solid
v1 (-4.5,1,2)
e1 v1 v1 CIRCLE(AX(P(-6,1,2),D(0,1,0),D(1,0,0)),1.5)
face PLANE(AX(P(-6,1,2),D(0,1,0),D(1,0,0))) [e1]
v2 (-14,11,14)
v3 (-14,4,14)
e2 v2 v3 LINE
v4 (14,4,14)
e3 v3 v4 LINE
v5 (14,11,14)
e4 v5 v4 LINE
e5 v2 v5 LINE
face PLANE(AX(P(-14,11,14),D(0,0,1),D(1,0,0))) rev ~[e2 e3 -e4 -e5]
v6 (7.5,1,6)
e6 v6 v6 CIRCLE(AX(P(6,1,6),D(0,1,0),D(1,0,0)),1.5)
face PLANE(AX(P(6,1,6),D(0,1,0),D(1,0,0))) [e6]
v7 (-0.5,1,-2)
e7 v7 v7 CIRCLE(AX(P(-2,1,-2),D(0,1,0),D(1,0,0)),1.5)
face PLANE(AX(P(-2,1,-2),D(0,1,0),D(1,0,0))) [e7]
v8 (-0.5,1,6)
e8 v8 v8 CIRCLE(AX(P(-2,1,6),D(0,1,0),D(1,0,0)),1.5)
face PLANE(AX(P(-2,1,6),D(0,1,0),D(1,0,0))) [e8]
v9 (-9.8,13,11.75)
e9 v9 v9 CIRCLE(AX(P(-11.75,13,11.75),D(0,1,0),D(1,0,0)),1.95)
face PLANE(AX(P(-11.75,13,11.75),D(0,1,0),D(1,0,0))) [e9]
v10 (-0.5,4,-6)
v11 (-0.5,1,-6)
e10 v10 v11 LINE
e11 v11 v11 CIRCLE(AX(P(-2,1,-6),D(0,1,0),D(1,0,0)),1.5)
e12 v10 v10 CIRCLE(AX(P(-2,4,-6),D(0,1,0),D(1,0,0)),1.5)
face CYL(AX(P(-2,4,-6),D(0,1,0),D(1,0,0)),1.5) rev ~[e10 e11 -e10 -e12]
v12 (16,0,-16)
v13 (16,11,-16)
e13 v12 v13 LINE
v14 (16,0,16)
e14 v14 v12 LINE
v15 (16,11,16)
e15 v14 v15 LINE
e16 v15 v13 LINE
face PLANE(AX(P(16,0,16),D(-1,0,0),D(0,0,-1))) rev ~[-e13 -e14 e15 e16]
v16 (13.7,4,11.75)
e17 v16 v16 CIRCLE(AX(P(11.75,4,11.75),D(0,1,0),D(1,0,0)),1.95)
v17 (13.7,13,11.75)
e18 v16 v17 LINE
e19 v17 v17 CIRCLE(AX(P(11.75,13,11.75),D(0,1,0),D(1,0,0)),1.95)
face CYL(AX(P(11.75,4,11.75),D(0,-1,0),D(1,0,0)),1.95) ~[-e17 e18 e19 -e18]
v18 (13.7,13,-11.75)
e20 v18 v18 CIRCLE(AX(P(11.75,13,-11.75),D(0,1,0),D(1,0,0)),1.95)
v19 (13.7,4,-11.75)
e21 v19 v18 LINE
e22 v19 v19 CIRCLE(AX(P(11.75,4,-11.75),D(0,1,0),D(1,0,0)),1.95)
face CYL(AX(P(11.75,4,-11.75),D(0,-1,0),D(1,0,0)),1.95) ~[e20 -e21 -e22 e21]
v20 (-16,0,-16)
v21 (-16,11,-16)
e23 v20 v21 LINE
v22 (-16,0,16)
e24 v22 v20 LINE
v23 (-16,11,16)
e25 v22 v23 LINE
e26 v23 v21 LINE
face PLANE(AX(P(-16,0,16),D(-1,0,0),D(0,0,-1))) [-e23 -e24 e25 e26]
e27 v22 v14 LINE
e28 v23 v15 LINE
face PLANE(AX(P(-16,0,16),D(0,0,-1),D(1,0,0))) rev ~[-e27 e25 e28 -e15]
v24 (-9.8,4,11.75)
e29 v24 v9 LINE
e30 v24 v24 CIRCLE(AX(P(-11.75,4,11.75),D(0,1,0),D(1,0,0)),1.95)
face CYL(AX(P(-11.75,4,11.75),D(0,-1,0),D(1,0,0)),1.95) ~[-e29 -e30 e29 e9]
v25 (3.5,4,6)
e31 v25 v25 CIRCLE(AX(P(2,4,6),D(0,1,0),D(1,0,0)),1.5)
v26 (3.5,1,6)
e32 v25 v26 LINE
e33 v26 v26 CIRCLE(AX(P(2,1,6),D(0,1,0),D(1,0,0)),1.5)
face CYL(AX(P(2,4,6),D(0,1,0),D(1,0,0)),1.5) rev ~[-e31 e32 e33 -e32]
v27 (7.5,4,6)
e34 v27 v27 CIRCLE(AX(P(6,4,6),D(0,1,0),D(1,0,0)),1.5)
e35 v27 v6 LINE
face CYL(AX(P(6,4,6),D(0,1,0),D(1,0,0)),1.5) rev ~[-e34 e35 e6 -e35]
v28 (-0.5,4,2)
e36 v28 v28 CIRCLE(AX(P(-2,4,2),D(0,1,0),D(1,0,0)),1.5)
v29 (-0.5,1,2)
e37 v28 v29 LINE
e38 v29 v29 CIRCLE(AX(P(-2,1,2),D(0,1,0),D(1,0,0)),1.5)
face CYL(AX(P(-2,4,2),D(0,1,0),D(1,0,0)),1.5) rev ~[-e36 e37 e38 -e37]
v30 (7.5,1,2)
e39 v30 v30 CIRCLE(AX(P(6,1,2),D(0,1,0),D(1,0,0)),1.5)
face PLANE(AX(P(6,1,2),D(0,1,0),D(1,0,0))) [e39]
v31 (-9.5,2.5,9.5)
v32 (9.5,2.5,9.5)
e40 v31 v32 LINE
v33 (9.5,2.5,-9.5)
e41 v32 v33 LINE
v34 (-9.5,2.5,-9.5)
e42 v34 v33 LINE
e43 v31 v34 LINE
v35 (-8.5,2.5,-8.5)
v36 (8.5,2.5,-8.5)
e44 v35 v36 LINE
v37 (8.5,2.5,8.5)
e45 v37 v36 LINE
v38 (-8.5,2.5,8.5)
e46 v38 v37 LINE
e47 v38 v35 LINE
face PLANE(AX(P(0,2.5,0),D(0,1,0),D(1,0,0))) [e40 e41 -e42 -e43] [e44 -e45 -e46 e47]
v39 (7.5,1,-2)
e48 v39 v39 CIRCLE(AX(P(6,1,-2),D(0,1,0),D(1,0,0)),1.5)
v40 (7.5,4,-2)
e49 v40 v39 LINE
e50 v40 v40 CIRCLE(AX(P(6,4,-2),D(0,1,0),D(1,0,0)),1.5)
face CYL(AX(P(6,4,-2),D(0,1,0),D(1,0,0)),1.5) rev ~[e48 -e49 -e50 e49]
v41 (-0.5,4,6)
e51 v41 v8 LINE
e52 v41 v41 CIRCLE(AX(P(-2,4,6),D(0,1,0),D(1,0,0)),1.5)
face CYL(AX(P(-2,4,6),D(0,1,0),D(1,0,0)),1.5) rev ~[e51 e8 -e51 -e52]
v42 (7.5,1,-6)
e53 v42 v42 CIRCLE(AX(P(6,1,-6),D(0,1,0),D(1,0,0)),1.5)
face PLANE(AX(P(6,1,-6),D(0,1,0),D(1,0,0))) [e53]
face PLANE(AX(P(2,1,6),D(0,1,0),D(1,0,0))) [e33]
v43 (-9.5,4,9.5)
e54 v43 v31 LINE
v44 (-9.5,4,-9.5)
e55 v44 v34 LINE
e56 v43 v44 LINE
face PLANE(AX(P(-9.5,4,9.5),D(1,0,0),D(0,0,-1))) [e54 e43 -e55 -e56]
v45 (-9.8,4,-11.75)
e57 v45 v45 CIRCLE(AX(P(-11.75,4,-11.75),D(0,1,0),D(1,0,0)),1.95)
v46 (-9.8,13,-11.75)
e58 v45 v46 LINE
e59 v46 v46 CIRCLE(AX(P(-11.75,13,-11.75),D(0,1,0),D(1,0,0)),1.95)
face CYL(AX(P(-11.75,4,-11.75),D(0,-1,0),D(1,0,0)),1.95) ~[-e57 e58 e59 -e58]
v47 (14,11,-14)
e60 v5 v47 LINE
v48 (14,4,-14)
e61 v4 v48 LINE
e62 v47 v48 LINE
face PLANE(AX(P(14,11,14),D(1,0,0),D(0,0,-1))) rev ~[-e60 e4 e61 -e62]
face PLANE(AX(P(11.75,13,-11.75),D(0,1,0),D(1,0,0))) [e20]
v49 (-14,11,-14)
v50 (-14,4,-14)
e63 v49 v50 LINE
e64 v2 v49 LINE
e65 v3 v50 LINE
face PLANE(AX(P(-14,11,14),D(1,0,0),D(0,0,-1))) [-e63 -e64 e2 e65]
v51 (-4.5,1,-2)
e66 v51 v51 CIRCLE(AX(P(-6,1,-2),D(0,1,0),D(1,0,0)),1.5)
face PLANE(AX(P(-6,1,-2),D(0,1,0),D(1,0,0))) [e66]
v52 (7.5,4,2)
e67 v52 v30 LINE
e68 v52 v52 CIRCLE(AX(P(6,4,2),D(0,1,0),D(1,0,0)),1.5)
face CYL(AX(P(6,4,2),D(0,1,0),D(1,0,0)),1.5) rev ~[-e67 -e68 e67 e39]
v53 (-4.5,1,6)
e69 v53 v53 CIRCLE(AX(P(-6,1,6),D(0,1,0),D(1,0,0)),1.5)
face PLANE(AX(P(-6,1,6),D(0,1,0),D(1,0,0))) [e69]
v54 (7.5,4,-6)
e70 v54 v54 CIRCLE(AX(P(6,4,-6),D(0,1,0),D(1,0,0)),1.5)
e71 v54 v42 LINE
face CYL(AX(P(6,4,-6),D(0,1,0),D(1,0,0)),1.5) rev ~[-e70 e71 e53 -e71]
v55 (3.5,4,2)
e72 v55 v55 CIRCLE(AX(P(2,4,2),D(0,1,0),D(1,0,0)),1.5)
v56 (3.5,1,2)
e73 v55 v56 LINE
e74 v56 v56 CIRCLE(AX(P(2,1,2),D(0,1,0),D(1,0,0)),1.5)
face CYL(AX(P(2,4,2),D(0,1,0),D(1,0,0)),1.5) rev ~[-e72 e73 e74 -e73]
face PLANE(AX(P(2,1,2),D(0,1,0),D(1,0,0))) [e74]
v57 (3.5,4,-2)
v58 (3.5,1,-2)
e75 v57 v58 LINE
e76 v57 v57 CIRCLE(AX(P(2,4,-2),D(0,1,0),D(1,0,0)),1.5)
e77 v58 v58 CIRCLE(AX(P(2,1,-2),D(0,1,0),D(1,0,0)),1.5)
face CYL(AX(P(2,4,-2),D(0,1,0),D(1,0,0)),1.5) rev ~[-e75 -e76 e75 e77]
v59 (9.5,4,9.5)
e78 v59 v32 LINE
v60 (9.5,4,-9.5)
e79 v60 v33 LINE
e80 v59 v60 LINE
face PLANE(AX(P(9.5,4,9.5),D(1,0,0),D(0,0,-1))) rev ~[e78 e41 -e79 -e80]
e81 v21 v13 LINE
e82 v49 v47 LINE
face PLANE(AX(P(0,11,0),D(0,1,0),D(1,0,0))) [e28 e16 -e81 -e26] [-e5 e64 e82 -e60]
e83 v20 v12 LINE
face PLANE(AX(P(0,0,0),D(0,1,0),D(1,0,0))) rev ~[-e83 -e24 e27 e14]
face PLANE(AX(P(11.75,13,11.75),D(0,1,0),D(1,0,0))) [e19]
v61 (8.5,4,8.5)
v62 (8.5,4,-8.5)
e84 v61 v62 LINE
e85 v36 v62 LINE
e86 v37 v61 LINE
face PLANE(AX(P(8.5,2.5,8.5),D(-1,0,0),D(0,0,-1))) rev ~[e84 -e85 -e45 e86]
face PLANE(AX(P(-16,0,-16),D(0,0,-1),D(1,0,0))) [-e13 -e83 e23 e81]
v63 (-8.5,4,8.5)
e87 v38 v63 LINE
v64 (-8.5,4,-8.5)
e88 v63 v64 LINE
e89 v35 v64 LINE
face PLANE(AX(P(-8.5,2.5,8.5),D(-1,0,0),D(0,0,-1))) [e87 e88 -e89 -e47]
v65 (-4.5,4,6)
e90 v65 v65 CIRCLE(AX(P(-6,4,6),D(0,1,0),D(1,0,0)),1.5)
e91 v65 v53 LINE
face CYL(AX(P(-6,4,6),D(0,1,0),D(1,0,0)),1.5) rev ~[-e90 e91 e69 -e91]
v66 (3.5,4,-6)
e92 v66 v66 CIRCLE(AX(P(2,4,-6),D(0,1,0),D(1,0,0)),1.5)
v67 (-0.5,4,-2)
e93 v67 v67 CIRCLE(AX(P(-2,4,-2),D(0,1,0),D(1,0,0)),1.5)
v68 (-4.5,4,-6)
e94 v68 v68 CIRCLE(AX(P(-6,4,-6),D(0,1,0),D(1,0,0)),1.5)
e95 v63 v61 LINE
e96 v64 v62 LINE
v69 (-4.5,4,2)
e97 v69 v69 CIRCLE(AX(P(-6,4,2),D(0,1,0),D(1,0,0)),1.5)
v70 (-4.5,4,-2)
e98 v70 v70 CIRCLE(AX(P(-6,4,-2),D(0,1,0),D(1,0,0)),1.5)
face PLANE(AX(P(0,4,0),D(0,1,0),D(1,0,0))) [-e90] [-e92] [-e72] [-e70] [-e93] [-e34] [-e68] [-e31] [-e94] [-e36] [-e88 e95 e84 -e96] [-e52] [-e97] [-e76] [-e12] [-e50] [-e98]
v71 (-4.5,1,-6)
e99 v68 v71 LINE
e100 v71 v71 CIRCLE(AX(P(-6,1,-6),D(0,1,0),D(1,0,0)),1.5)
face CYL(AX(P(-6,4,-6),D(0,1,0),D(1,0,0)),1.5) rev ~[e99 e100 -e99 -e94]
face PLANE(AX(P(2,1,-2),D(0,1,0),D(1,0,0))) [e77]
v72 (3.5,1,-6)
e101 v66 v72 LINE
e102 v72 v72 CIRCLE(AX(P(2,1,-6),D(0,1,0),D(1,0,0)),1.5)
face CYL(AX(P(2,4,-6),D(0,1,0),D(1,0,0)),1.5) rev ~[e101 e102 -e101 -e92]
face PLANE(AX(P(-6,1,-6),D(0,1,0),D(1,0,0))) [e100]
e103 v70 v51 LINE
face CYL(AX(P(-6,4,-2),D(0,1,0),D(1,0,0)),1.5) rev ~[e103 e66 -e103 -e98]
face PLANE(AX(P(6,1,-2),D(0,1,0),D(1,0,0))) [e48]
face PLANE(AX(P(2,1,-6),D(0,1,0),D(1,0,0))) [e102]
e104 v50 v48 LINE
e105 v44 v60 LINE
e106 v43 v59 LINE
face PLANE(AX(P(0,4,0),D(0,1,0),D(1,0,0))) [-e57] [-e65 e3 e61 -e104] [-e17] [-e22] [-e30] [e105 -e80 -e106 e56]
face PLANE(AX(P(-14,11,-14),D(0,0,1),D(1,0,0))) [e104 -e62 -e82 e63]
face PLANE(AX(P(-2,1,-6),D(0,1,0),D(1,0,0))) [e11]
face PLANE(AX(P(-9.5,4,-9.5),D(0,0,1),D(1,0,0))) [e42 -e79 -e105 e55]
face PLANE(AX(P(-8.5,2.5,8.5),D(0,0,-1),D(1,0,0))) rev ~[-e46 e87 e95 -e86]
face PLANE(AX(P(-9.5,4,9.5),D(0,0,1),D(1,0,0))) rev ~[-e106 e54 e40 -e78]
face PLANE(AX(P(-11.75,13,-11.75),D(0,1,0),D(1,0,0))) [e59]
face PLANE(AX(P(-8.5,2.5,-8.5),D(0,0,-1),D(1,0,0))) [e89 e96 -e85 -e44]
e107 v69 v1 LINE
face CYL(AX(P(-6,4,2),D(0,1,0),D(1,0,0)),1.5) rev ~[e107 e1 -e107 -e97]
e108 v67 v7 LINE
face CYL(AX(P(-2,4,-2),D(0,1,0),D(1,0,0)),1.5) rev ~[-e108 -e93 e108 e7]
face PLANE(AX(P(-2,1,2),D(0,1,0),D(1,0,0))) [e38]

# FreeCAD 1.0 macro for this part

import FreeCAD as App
import Part
import Sketcher
from FreeCAD import Vector

doc = App.newDocument("Part")
params = doc.addObject("Spreadsheet::Sheet", "Params")
for row, (alias, value) in enumerate([
    ("sketch1_width", "32 mm"),
    ("pad1_length", "11 mm"),
    ("sketch2_width", "28 mm"),
    ("pocket1_length", "7 mm"),
    ("sketch3_width", "19 mm"),
    ("pocket2_length", "1.5 mm"),
    ("sketch4_width", "17 mm"),
    ("pad2_length", "1.5 mm"),
    ("sketch5_diameter", "3.9 mm"),
    ("pad3_length", "9 mm"),
    ("sketch6_diameter", "3 mm"),
    ("pocket3_length", "3 mm"),
], start=1):
    params.set(f"A{row}", alias)
    params.set(f"B{row}", "=" + value)
    params.setAlias(f"B{row}", alias)

body = doc.addObject("PartDesign::Body", "Body")

# Sketch on XZ plane
sketch1 = doc.addObject("Sketcher::SketchObject", "Sketch")
body.addObject(sketch1)
sketch1.AttachmentSupport = (doc.XZ_Plane, [""])
sketch1.MapMode = "FlatFace"
sketch1.addGeometry(Part.LineSegment(Vector(-16, -16, 0), Vector(-16, 16, 0)), False)
sketch1.addGeometry(Part.LineSegment(Vector(-16, 16, 0), Vector(16, 16, 0)), False)
sketch1.addGeometry(Part.LineSegment(Vector(16, 16, 0), Vector(16, -16, 0)), False)
sketch1.addGeometry(Part.LineSegment(Vector(16, -16, 0), Vector(-16, -16, 0)), False)
sketch1.addConstraint(Sketcher.Constraint("Coincident", 0, 2, 1, 1))
sketch1.addConstraint(Sketcher.Constraint("Coincident", 1, 2, 2, 1))
sketch1.addConstraint(Sketcher.Constraint("Coincident", 2, 2, 3, 1))
sketch1.addConstraint(Sketcher.Constraint("Coincident", 3, 2, 0, 1))
sketch1.addConstraint(Sketcher.Constraint("Vertical", 0))
sketch1.addConstraint(Sketcher.Constraint("Horizontal", 1))
sketch1.addConstraint(Sketcher.Constraint("Vertical", 2))
sketch1.addConstraint(Sketcher.Constraint("Horizontal", 3))
sketch1.addConstraint(Sketcher.Constraint("Symmetric", 0, 2, 2, 2, -1, 1))
sketch1.addConstraint(Sketcher.Constraint("Equal", 3, 0))
sketch1.addConstraint(Sketcher.Constraint("DistanceX", 1, 1, 1, 2, 32.0))
sketch1.setExpression("Constraints[10]", "Params.sketch1_width")
pad1 = doc.addObject("PartDesign::Pad", "Pad")
body.addObject(pad1)
pad1.Profile = sketch1
pad1.setExpression("Length", "Params.pad1_length")
pad1.Reversed = True

# Sketch on XZ plane
sketch2 = doc.addObject("Sketcher::SketchObject", "Sketch001")
body.addObject(sketch2)
sketch2.AttachmentSupport = (doc.XZ_Plane, [""])
sketch2.MapMode = "FlatFace"
sketch2.AttachmentOffset = App.Placement(Vector(0, 0, -11), App.Rotation())
sketch2.addGeometry(Part.LineSegment(Vector(-14, -14, 0), Vector(-14, 14, 0)), False)
sketch2.addGeometry(Part.LineSegment(Vector(-14, 14, 0), Vector(14, 14, 0)), False)
sketch2.addGeometry(Part.LineSegment(Vector(14, 14, 0), Vector(14, -14, 0)), False)
sketch2.addGeometry(Part.LineSegment(Vector(14, -14, 0), Vector(-14, -14, 0)), False)
sketch2.addConstraint(Sketcher.Constraint("Coincident", 0, 2, 1, 1))
sketch2.addConstraint(Sketcher.Constraint("Coincident", 1, 2, 2, 1))
sketch2.addConstraint(Sketcher.Constraint("Coincident", 2, 2, 3, 1))
sketch2.addConstraint(Sketcher.Constraint("Coincident", 3, 2, 0, 1))
sketch2.addConstraint(Sketcher.Constraint("Vertical", 0))
sketch2.addConstraint(Sketcher.Constraint("Horizontal", 1))
sketch2.addConstraint(Sketcher.Constraint("Vertical", 2))
sketch2.addConstraint(Sketcher.Constraint("Horizontal", 3))
sketch2.addConstraint(Sketcher.Constraint("Symmetric", 0, 2, 2, 2, -1, 1))
sketch2.addConstraint(Sketcher.Constraint("Equal", 3, 0))
sketch2.addConstraint(Sketcher.Constraint("DistanceX", 1, 1, 1, 2, 28.0))
sketch2.setExpression("Constraints[10]", "Params.sketch2_width")
pocket1 = doc.addObject("PartDesign::Pocket", "Pocket")
body.addObject(pocket1)
pocket1.Profile = sketch2
pocket1.setExpression("Length", "Params.pocket1_length")
pocket1.Reversed = True

# Sketch on XZ plane
sketch3 = doc.addObject("Sketcher::SketchObject", "Sketch002")
body.addObject(sketch3)
sketch3.AttachmentSupport = (doc.XZ_Plane, [""])
sketch3.MapMode = "FlatFace"
sketch3.AttachmentOffset = App.Placement(Vector(0, 0, -4), App.Rotation())
sketch3.addGeometry(Part.LineSegment(Vector(-9.5, -9.5, 0), Vector(-9.5, 9.5, 0)), False)
sketch3.addGeometry(Part.LineSegment(Vector(-9.5, 9.5, 0), Vector(9.5, 9.5, 0)), False)
sketch3.addGeometry(Part.LineSegment(Vector(9.5, 9.5, 0), Vector(9.5, -9.5, 0)), False)
sketch3.addGeometry(Part.LineSegment(Vector(9.5, -9.5, 0), Vector(-9.5, -9.5, 0)), False)
sketch3.addConstraint(Sketcher.Constraint("Coincident", 0, 2, 1, 1))
sketch3.addConstraint(Sketcher.Constraint("Coincident", 1, 2, 2, 1))
sketch3.addConstraint(Sketcher.Constraint("Coincident", 2, 2, 3, 1))
sketch3.addConstraint(Sketcher.Constraint("Coincident", 3, 2, 0, 1))
sketch3.addConstraint(Sketcher.Constraint("Vertical", 0))
sketch3.addConstraint(Sketcher.Constraint("Horizontal", 1))
sketch3.addConstraint(Sketcher.Constraint("Vertical", 2))
sketch3.addConstraint(Sketcher.Constraint("Horizontal", 3))
sketch3.addConstraint(Sketcher.Constraint("Symmetric", 0, 2, 2, 2, -1, 1))
sketch3.addConstraint(Sketcher.Constraint("Equal", 3, 0))
sketch3.addConstraint(Sketcher.Constraint("DistanceX", 1, 1, 1, 2, 19.0))
sketch3.setExpression("Constraints[10]", "Params.sketch3_width")
pocket2 = doc.addObject("PartDesign::Pocket", "Pocket001")
body.addObject(pocket2)
pocket2.Profile = sketch3
pocket2.setExpression("Length", "Params.pocket2_length")
pocket2.Reversed = True

# Sketch on XZ plane
sketch4 = doc.addObject("Sketcher::SketchObject", "Sketch003")
body.addObject(sketch4)
sketch4.AttachmentSupport = (doc.XZ_Plane, [""])
sketch4.MapMode = "FlatFace"
sketch4.AttachmentOffset = App.Placement(Vector(0, 0, -2.5), App.Rotation())
sketch4.addGeometry(Part.LineSegment(Vector(-8.5, -8.5, 0), Vector(-8.5, 8.5, 0)), False)
sketch4.addGeometry(Part.LineSegment(Vector(-8.5, 8.5, 0), Vector(8.5, 8.5, 0)), False)
sketch4.addGeometry(Part.LineSegment(Vector(8.5, 8.5, 0), Vector(8.5, -8.5, 0)), False)
sketch4.addGeometry(Part.LineSegment(Vector(8.5, -8.5, 0), Vector(-8.5, -8.5, 0)), False)
sketch4.addConstraint(Sketcher.Constraint("Coincident", 0, 2, 1, 1))
sketch4.addConstraint(Sketcher.Constraint("Coincident", 1, 2, 2, 1))
sketch4.addConstraint(Sketcher.Constraint("Coincident", 2, 2, 3, 1))
sketch4.addConstraint(Sketcher.Constraint("Coincident", 3, 2, 0, 1))
sketch4.addConstraint(Sketcher.Constraint("Vertical", 0))
sketch4.addConstraint(Sketcher.Constraint("Horizontal", 1))
sketch4.addConstraint(Sketcher.Constraint("Vertical", 2))
sketch4.addConstraint(Sketcher.Constraint("Horizontal", 3))
sketch4.addConstraint(Sketcher.Constraint("Symmetric", 0, 2, 2, 2, -1, 1))
sketch4.addConstraint(Sketcher.Constraint("Equal", 3, 0))
sketch4.addConstraint(Sketcher.Constraint("DistanceX", 1, 1, 1, 2, 17.0))
sketch4.setExpression("Constraints[10]", "Params.sketch4_width")
pad2 = doc.addObject("PartDesign::Pad", "Pad001")
body.addObject(pad2)
pad2.Profile = sketch4
pad2.setExpression("Length", "Params.pad2_length")
pad2.Reversed = True

# Sketch on XZ plane
sketch5 = doc.addObject("Sketcher::SketchObject", "Sketch004")
body.addObject(sketch5)
sketch5.AttachmentSupport = (doc.XZ_Plane, [""])
sketch5.MapMode = "FlatFace"
sketch5.AttachmentOffset = App.Placement(Vector(0, 0, -4), App.Rotation())
sketch5.addGeometry(Part.Circle(Vector(-11.75, -11.75, 0), Vector(0, 0, 1), 1.95), False)
sketch5.addGeometry(Part.Circle(Vector(11.75, -11.75, 0), Vector(0, 0, 1), 1.95), False)
sketch5.addGeometry(Part.Circle(Vector(11.75, 11.75, 0), Vector(0, 0, 1), 1.95), False)
sketch5.addGeometry(Part.Circle(Vector(-11.75, 11.75, 0), Vector(0, 0, 1), 1.95), False)
sketch5.addConstraint(Sketcher.Constraint("Equal", 0, 1))
sketch5.addConstraint(Sketcher.Constraint("Equal", 1, 2))
sketch5.addConstraint(Sketcher.Constraint("Equal", 2, 3))
sketch5.addConstraint(Sketcher.Constraint("Symmetric", 0, 3, 2, 3, -1, 1))
sketch5.addConstraint(Sketcher.Constraint("Symmetric", 1, 3, 3, 3, -1, 1))
sketch5.addConstraint(Sketcher.Constraint("Symmetric", 0, 3, 1, 3, -2))
sketch5.addConstraint(Sketcher.Constraint("Diameter", 0, 3.9))
sketch5.addConstraint(Sketcher.Constraint("DistanceX", 0, 3, 1, 3, 23.5))
sketch5.addConstraint(Sketcher.Constraint("DistanceY", 1, 3, 2, 3, 23.5))
sketch5.setExpression("Constraints[6]", "Params.sketch5_diameter")
pad3 = doc.addObject("PartDesign::Pad", "Pad002")
body.addObject(pad3)
pad3.Profile = sketch5
pad3.setExpression("Length", "Params.pad3_length")
pad3.Reversed = True

# Sketch on XZ plane
sketch6 = doc.addObject("Sketcher::SketchObject", "Sketch005")
body.addObject(sketch6)
sketch6.AttachmentSupport = (doc.XZ_Plane, [""])
sketch6.MapMode = "FlatFace"
sketch6.AttachmentOffset = App.Placement(Vector(0, 0, -4), App.Rotation())
sketch6.addGeometry(Part.Circle(Vector(-6, 6, 0), Vector(0, 0, 1), 1.5), False)
sketch6.addGeometry(Part.Circle(Vector(-2, 6, 0), Vector(0, 0, 1), 1.5), False)
sketch6.addGeometry(Part.Circle(Vector(2, 6, 0), Vector(0, 0, 1), 1.5), False)
sketch6.addGeometry(Part.Circle(Vector(6, 6, 0), Vector(0, 0, 1), 1.5), False)
sketch6.addGeometry(Part.Circle(Vector(-2, 2, 0), Vector(0, 0, 1), 1.5), False)
sketch6.addGeometry(Part.Circle(Vector(2, 2, 0), Vector(0, 0, 1), 1.5), False)
sketch6.addGeometry(Part.Circle(Vector(6, 2, 0), Vector(0, 0, 1), 1.5), False)
sketch6.addGeometry(Part.Circle(Vector(-2, -2, 0), Vector(0, 0, 1), 1.5), False)
sketch6.addGeometry(Part.Circle(Vector(2, -2, 0), Vector(0, 0, 1), 1.5), False)
sketch6.addGeometry(Part.Circle(Vector(6, -2, 0), Vector(0, 0, 1), 1.5), False)
sketch6.addGeometry(Part.Circle(Vector(-2, -6, 0), Vector(0, 0, 1), 1.5), False)
sketch6.addGeometry(Part.Circle(Vector(2, -6, 0), Vector(0, 0, 1), 1.5), False)
sketch6.addGeometry(Part.Circle(Vector(6, -6, 0), Vector(0, 0, 1), 1.5), False)
sketch6.addGeometry(Part.Circle(Vector(-6, 2, 0), Vector(0, 0, 1), 1.5), False)
sketch6.addGeometry(Part.Circle(Vector(-6, -2, 0), Vector(0, 0, 1), 1.5), False)
sketch6.addGeometry(Part.Circle(Vector(-6, -6, 0), Vector(0, 0, 1), 1.5), False)
sketch6.addConstraint(Sketcher.Constraint("Equal", 0, 1))
sketch6.addConstraint(Sketcher.Constraint("Equal", 1, 2))
sketch6.addConstraint(Sketcher.Constraint("Equal", 2, 3))
sketch6.addConstraint(Sketcher.Constraint("Equal", 3, 4))
sketch6.addConstraint(Sketcher.Constraint("Equal", 4, 5))
sketch6.addConstraint(Sketcher.Constraint("Equal", 5, 6))
sketch6.addConstraint(Sketcher.Constraint("Equal", 6, 7))
sketch6.addConstraint(Sketcher.Constraint("Equal", 7, 8))
sketch6.addConstraint(Sketcher.Constraint("Equal", 8, 9))
sketch6.addConstraint(Sketcher.Constraint("Equal", 9, 10))
sketch6.addConstraint(Sketcher.Constraint("Equal", 10, 11))
sketch6.addConstraint(Sketcher.Constraint("Equal", 11, 12))
sketch6.addConstraint(Sketcher.Constraint("Equal", 12, 13))
sketch6.addConstraint(Sketcher.Constraint("Equal", 13, 14))
sketch6.addConstraint(Sketcher.Constraint("Equal", 14, 15))
sketch6.addConstraint(Sketcher.Constraint("Symmetric", 5, 3, 7, 3, -1, 1))
sketch6.addConstraint(Sketcher.Constraint("Symmetric", 4, 3, 8, 3, -1, 1))
sketch6.addConstraint(Sketcher.Constraint("Symmetric", 2, 3, 10, 3, -1, 1))
sketch6.addConstraint(Sketcher.Constraint("Symmetric", 1, 3, 11, 3, -1, 1))
sketch6.addConstraint(Sketcher.Constraint("Symmetric", 0, 3, 12, 3, -1, 1))
sketch6.addConstraint(Sketcher.Constraint("Symmetric", 9, 3, 13, 3, -1, 1))
sketch6.addConstraint(Sketcher.Constraint("Symmetric", 6, 3, 14, 3, -1, 1))
sketch6.addConstraint(Sketcher.Constraint("Symmetric", 3, 3, 15, 3, -1, 1))
sketch6.addConstraint(Sketcher.Constraint("Symmetric", 1, 3, 2, 3, -2))
sketch6.addConstraint(Sketcher.Constraint("Symmetric", 0, 3, 3, 3, -2))
sketch6.addConstraint(Sketcher.Constraint("Symmetric", 4, 3, 5, 3, -2))
sketch6.addConstraint(Sketcher.Constraint("Symmetric", 6, 3, 13, 3, -2))
sketch6.addConstraint(Sketcher.Constraint("Horizontal", 0, 3, 1, 3))
sketch6.addConstraint(Sketcher.Constraint("Horizontal", 5, 3, 6, 3))
sketch6.addConstraint(Sketcher.Constraint("Vertical", 1, 3, 4, 3))
sketch6.addConstraint(Sketcher.Constraint("Vertical", 3, 3, 6, 3))
sketch6.addConstraint(Sketcher.Constraint("Diameter", 0, 3.0))
sketch6.addConstraint(Sketcher.Constraint("DistanceX", 0, 3, -1, 1, 6.0))
sketch6.addConstraint(Sketcher.Constraint("DistanceY", -1, 1, 0, 3, 6.0))
sketch6.addConstraint(Sketcher.Constraint("DistanceX", 1, 3, -1, 1, 2.0))
sketch6.addConstraint(Sketcher.Constraint("DistanceY", -1, 1, 4, 3, 2.0))
sketch6.setExpression("Constraints[31]", "Params.sketch6_diameter")
pocket3 = doc.addObject("PartDesign::Pocket", "Pocket002")
body.addObject(pocket3)
pocket3.Profile = sketch6
pocket3.setExpression("Length", "Params.pocket3_length")
pocket3.Reversed = True

doc.recompute()
